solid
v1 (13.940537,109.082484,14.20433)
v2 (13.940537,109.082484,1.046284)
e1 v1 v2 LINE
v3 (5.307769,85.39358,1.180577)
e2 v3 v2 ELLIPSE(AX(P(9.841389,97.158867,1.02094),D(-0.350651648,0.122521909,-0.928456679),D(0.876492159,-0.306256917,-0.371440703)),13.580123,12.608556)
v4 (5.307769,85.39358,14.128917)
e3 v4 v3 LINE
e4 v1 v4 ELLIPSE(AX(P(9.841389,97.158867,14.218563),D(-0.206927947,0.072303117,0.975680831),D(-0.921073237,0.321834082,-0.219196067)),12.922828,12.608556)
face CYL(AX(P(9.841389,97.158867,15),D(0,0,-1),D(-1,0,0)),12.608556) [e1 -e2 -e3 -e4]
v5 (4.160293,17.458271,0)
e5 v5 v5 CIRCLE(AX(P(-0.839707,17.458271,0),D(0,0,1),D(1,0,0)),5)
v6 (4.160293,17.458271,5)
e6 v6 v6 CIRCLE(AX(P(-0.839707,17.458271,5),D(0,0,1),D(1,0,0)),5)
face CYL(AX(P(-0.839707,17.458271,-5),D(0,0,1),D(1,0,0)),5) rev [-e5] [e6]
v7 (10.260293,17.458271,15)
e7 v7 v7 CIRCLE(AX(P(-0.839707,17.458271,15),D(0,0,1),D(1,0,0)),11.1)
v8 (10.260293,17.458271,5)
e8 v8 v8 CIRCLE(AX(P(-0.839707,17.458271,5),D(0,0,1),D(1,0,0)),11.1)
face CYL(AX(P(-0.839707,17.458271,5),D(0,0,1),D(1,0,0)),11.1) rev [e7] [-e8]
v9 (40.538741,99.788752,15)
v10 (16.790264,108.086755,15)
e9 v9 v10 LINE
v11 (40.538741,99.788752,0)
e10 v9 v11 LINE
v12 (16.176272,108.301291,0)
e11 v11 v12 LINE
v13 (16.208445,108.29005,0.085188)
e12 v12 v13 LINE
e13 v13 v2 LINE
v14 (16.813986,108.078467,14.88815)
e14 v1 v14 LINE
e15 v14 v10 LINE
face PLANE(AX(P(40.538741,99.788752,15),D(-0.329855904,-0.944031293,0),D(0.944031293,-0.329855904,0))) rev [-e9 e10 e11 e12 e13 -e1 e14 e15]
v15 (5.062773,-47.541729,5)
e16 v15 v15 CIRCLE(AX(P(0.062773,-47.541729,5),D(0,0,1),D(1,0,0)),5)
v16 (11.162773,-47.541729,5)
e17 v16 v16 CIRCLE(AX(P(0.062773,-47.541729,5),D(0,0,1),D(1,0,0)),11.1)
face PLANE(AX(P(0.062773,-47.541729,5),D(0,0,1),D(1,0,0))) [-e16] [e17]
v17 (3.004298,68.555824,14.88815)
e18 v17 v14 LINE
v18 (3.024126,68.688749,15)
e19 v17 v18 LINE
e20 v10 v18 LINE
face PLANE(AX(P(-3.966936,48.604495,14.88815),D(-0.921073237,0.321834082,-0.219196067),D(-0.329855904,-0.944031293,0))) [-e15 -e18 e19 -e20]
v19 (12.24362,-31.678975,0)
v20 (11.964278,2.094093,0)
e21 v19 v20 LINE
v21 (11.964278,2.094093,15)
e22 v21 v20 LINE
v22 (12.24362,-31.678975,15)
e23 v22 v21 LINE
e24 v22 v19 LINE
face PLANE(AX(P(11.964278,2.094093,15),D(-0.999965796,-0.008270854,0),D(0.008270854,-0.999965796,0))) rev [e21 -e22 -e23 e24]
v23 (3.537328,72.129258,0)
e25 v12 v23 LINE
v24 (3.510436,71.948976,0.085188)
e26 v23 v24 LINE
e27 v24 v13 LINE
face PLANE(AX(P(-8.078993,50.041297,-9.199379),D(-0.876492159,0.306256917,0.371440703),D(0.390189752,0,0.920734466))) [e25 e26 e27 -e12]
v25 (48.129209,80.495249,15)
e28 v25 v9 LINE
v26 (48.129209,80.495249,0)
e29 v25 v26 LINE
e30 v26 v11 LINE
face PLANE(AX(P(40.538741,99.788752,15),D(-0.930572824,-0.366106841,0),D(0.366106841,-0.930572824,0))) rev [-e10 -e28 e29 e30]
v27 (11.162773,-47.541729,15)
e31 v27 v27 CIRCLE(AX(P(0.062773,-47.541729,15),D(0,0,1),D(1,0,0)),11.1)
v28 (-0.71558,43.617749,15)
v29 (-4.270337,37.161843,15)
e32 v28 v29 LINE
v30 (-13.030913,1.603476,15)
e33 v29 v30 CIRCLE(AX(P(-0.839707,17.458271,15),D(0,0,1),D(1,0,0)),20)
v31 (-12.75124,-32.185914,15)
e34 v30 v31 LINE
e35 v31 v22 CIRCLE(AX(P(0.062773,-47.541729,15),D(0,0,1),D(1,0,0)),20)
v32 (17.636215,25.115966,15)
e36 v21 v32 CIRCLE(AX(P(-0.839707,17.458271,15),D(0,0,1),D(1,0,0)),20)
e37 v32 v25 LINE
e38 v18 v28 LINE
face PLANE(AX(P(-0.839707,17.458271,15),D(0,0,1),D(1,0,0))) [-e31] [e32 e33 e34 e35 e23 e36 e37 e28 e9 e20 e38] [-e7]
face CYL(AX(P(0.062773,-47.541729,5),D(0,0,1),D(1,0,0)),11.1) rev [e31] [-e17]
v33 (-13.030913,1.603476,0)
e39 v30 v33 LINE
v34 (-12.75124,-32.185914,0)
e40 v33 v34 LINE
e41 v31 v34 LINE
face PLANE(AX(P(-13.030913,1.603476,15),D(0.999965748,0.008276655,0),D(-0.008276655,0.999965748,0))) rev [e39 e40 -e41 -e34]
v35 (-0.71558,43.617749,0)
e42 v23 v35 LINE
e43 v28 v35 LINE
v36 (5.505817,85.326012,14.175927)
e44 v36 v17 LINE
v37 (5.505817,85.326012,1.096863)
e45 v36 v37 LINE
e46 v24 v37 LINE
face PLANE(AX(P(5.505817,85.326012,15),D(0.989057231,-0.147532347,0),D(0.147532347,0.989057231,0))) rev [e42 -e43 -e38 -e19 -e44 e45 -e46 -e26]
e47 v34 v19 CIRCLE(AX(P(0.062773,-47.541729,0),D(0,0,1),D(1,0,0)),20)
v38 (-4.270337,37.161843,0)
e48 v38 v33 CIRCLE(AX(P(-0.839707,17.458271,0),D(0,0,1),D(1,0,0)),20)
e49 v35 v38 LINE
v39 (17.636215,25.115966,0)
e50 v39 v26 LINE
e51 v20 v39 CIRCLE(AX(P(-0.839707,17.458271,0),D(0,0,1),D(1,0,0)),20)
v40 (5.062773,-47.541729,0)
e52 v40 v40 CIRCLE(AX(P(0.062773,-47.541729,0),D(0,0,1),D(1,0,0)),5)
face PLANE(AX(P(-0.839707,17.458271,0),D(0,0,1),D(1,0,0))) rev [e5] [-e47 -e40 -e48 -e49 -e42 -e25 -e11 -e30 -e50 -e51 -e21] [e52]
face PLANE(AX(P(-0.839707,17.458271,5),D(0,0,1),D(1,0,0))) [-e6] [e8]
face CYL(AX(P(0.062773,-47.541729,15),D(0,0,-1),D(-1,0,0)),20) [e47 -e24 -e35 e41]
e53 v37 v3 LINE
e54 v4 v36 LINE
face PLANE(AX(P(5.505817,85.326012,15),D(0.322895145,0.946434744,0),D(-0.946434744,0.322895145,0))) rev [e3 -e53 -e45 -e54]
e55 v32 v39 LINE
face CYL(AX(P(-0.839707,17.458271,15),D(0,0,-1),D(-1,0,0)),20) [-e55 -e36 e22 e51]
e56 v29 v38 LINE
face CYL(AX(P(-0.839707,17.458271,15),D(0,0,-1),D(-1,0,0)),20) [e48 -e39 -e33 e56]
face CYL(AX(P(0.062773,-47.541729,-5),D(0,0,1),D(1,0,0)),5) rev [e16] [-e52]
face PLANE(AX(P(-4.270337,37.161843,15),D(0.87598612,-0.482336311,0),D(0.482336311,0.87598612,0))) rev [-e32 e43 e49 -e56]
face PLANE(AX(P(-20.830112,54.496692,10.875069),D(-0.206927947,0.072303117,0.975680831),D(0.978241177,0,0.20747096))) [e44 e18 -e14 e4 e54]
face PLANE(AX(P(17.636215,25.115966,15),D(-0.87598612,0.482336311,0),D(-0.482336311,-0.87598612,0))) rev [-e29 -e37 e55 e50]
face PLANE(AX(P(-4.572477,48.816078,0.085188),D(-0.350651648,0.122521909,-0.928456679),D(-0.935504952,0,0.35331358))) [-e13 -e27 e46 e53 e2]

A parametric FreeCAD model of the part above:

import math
import FreeCAD as App
import Part
import Sketcher
from FreeCAD import Vector

doc = App.newDocument("Part")
body = doc.addObject("PartDesign::Body", "Body")

sketch1 = body.newObject("Sketcher::SketchObject", "Sketch")
sketch1.AttachmentSupport = (doc.getObject("XY_Plane"), [""])
sketch1.MapMode = "FlatFace"
sketch1.addGeometry(Part.LineSegment(Vector(5.307769, 85.39358, 0), Vector(5.505817, 85.326012, 0)), False)
sketch1.addGeometry(Part.LineSegment(Vector(5.505817, 85.326012, 0), Vector(-0.71558, 43.617749, 0)), False)
sketch1.addGeometry(Part.LineSegment(Vector(-0.71558, 43.617749, 0), Vector(-4.270337, 37.161843, 0)), False)
sketch1.addGeometry(Part.ArcOfCircle(Part.Circle(Vector(-0.839707, 17.458271, 0), Vector(0, 0, 1), 20), math.radians(99.876875), math.radians(232.442286)), False)
sketch1.addGeometry(Part.LineSegment(Vector(-13.030913, 1.603476, 0), Vector(-12.75124, -32.185914, 0)), False)
sketch1.addGeometry(Part.ArcOfCircle(Part.Circle(Vector(0.062773, -47.541729, 0), Vector(0, 0, 1), 20), math.radians(129.844086), math.radians(412.479711)), False)
sketch1.addGeometry(Part.LineSegment(Vector(12.24362, -31.678975, 0), Vector(11.964278, 2.094093, 0)), False)
sketch1.addGeometry(Part.ArcOfCircle(Part.Circle(Vector(-0.839707, 17.458271, 0), Vector(0, 0, 1), 20), math.radians(-50.19332), math.radians(22.512485)), False)
sketch1.addGeometry(Part.LineSegment(Vector(17.636215, 25.115966, 0), Vector(48.129209, 80.495249, 0)), False)
sketch1.addGeometry(Part.LineSegment(Vector(48.129209, 80.495249, 0), Vector(40.538741, 99.788752, 0)), False)
sketch1.addGeometry(Part.LineSegment(Vector(40.538741, 99.788752, 0), Vector(13.940537, 109.082484, 0)), False)
sketch1.addGeometry(Part.ArcOfCircle(Part.Circle(Vector(9.841389, 97.158867, 0), Vector(0, 0, 1), 12.608556), math.radians(71.027855), math.radians(248.926395)), False)
sketch1.addConstraint(Sketcher.Constraint("Coincident", 0, 2, 1, 1))
sketch1.addConstraint(Sketcher.Constraint("Coincident", 1, 2, 2, 1))
sketch1.addConstraint(Sketcher.Constraint("Coincident", 2, 2, 3, 1))
sketch1.addConstraint(Sketcher.Constraint("Coincident", 3, 2, 4, 1))
sketch1.addConstraint(Sketcher.Constraint("Coincident", 4, 2, 5, 1))
sketch1.addConstraint(Sketcher.Constraint("Coincident", 5, 2, 6, 1))
sketch1.addConstraint(Sketcher.Constraint("Coincident", 6, 2, 7, 1))
sketch1.addConstraint(Sketcher.Constraint("Coincident", 7, 2, 8, 1))
sketch1.addConstraint(Sketcher.Constraint("Coincident", 8, 2, 9, 1))
sketch1.addConstraint(Sketcher.Constraint("Coincident", 9, 2, 10, 1))
sketch1.addConstraint(Sketcher.Constraint("Coincident", 10, 2, 11, 1))
sketch1.addConstraint(Sketcher.Constraint("Coincident", 11, 2, 0, 1))
sketch1.addConstraint(Sketcher.Constraint("Coincident", 7, 3, 3, 3))
sketch1.addConstraint(Sketcher.Constraint("Equal", 3, 5))
sketch1.addConstraint(Sketcher.Constraint("Equal", 5, 7))
sketch1.addConstraint(Sketcher.Constraint("Parallel", 2, 8))
sketch1.addConstraint(Sketcher.Constraint("Radius", 3, 20.0))
sketch1.addConstraint(Sketcher.Constraint("DistanceY", 5, 3, 3, 3, 65.0))
sketch1.addConstraint(Sketcher.Constraint("Radius", 11, 12.608556))
sketch1.addConstraint(Sketcher.Constraint("DistanceY", 1, 2, 8, 2, 36.8775))
sketch1.addConstraint(Sketcher.Constraint("Distance", 2, 7.369872))
sketch1.addConstraint(Sketcher.Constraint("Distance", 8, 63.219361))
sketch1.addConstraint(Sketcher.Constraint("Distance", 9, 20.732932))
sketch1.addConstraint(Sketcher.Constraint("Distance", 10, 28.175129))
sketch1.addConstraint(Sketcher.Constraint("DistanceY", -1, 1, 3, 3, 17.458271))
sketch1.addConstraint(Sketcher.Constraint("DistanceX", -1, 1, 11, 3, 9.841389))
sketch1.addConstraint(Sketcher.Constraint("DistanceX", 1, 2, -1, 1, 0.71558))
sketch1.addConstraint(Sketcher.Constraint("DistanceY", -1, 1, 1, 2, 43.617749))
sketch1.addConstraint(Sketcher.Constraint("DistanceX", 4, 2, -1, 1, 12.75124))
sketch1.addConstraint(Sketcher.Constraint("DistanceX", -1, 1, 5, 2, 12.24362))
sketch1.addConstraint(Sketcher.Constraint("DistanceX", -1, 1, 6, 2, 11.964278))
sketch1.addConstraint(Sketcher.Constraint("DistanceX", -1, 1, 8, 2, 48.129209))
sketch1.addConstraint(Sketcher.Constraint("DistanceX", -1, 1, 9, 2, 40.538741))
sketch1.addConstraint(Sketcher.Constraint("DistanceX", -1, 1, 11, 2, 5.307769))
sketch1.addConstraint(Sketcher.Constraint("DistanceY", -1, 1, 11, 2, 85.39358))
sketch1.addConstraint(Sketcher.Constraint("DistanceX", 3, 3, 5, 3, 0.902481))
sketch1.addConstraint(Sketcher.Constraint("DistanceX", 0, 2, 11, 3, 4.335572))
sketch1.addConstraint(Sketcher.Constraint("DistanceY", 3, 3, 0, 2, 67.867742))
sketch1.addConstraint(Sketcher.Constraint("DistanceY", 4, 2, 3, 2, 33.78939))
pad1 = body.newObject("PartDesign::Pad", "Pad")
pad1.Profile = sketch1
pad1.Length = 15

sketch2 = body.newObject("Sketcher::SketchObject", "Sketch001")
sketch2.AttachmentSupport = (doc.getObject("XY_Plane"), [""])
sketch2.MapMode = "FlatFace"
sketch2.AttachmentOffset = App.Placement(Vector(0, 0, 15), App.Rotation())
sketch2.addGeometry(Part.Circle(Vector(-0.839707, 17.458271, 0), Vector(0, 0, 1), 11.1), False)
sketch2.addGeometry(Part.Circle(Vector(0.062773, -47.541729, 0), Vector(0, 0, 1), 11.1), False)
sketch2.addConstraint(Sketcher.Constraint("Equal", 0, 1))
sketch2.addConstraint(Sketcher.Constraint("Diameter", 0, 22.2))
sketch2.addConstraint(Sketcher.Constraint("DistanceY", 1, 3, 0, 3, 65.0))
sketch2.addConstraint(Sketcher.Constraint("DistanceY", -1, 1, 0, 3, 17.458271))
sketch2.addConstraint(Sketcher.Constraint("DistanceX", 0, 3, 1, 3, 0.902481))
sketch2.addConstraint(Sketcher.Constraint("DistanceX", 0, 3, -1, 1, 0.839707))
pocket1 = body.newObject("PartDesign::Pocket", "Pocket")
pocket1.Profile = sketch2
pocket1.Length = 10

sketch3 = body.newObject("Sketcher::SketchObject", "Sketch002")
sketch3.AttachmentSupport = (doc.getObject("XY_Plane"), [""])
sketch3.MapMode = "FlatFace"
sketch3.AttachmentOffset = App.Placement(Vector(0, 0, 5), App.Rotation())
sketch3.addGeometry(Part.Circle(Vector(-0.839707, 17.458271, 0), Vector(0, 0, 1), 5), False)
sketch3.addGeometry(Part.Circle(Vector(0.062773, -47.541729, 0), Vector(0, 0, 1), 5), False)
sketch3.addConstraint(Sketcher.Constraint("Equal", 0, 1))
sketch3.addConstraint(Sketcher.Constraint("Diameter", 0, 10.0))
sketch3.addConstraint(Sketcher.Constraint("DistanceY", 1, 3, 0, 3, 65.0))
sketch3.addConstraint(Sketcher.Constraint("DistanceY", -1, 1, 0, 3, 17.458271))
sketch3.addConstraint(Sketcher.Constraint("DistanceX", 0, 3, 1, 3, 0.902481))
sketch3.addConstraint(Sketcher.Constraint("DistanceX", 0, 3, -1, 1, 0.839707))
pocket2 = body.newObject("PartDesign::Pocket", "Pocket001")
pocket2.Profile = sketch3
pocket2.Length = 10

sketch4 = body.newObject("Sketcher::SketchObject", "Sketch003")
sketch4.Placement = App.Placement(Vector(35.484462, 101.554777, 0), App.Rotation(Vector(0.944031293, -0.329855904, 0), Vector(0, 0, -1), Vector(0.329855904, 0.944031293, 0), "ZXY"))
sketch4.addGeometry(Part.LineSegment(Vector(-37.645575, -6.976962, 0), Vector(-20.418833, -0.085188, 0)), False)
sketch4.addGeometry(Part.LineSegment(Vector(-20.418833, -0.085188, 0), Vector(-24.13324, 9.199379, 0)), False)
sketch4.addGeometry(Part.LineSegment(Vector(-24.13324, 9.199379, 0), Vector(-41.359982, 2.307605, 0)), False)
sketch4.addGeometry(Part.LineSegment(Vector(-41.359982, 2.307605, 0), Vector(-37.645575, -6.976962, 0)), False)
sketch4.addGeometry(Part.LineSegment(Vector(-19.777392, -14.88815, 0), Vector(-37.640333, -10.875069, 0)), False)
sketch4.addGeometry(Part.LineSegment(Vector(-37.640333, -10.875069, 0), Vector(-39.832294, -20.631877, 0)), False)
sketch4.addGeometry(Part.LineSegment(Vector(-39.832294, -20.631877, 0), Vector(-21.969352, -24.644959, 0)), False)
sketch4.addGeometry(Part.LineSegment(Vector(-21.969352, -24.644959, 0), Vector(-19.777392, -14.88815, 0)), False)
sketch4.addConstraint(Sketcher.Constraint("Coincident", 0, 2, 1, 1))
sketch4.addConstraint(Sketcher.Constraint("Coincident", 1, 2, 2, 1))
sketch4.addConstraint(Sketcher.Constraint("Coincident", 2, 2, 3, 1))
sketch4.addConstraint(Sketcher.Constraint("Coincident", 3, 2, 0, 1))
sketch4.addConstraint(Sketcher.Constraint("Coincident", 4, 2, 5, 1))
sketch4.addConstraint(Sketcher.Constraint("Coincident", 5, 2, 6, 1))
sketch4.addConstraint(Sketcher.Constraint("Coincident", 6, 2, 7, 1))
sketch4.addConstraint(Sketcher.Constraint("Coincident", 7, 2, 4, 1))
sketch4.addConstraint(Sketcher.Constraint("Perpendicular", 0, 1))
sketch4.addConstraint(Sketcher.Constraint("Perpendicular", 1, 2))
sketch4.addConstraint(Sketcher.Constraint("Perpendicular", 2, 3))
sketch4.addConstraint(Sketcher.Constraint("Perpendicular", 4, 5))
sketch4.addConstraint(Sketcher.Constraint("Perpendicular", 5, 6))
sketch4.addConstraint(Sketcher.Constraint("Perpendicular", 6, 7))
sketch4.addConstraint(Sketcher.Constraint("Equal", 3, 5))
sketch4.addConstraint(Sketcher.Constraint("Distance", 1, 10.0))
sketch4.addConstraint(Sketcher.Constraint("DistanceX", 4, 2, 0, 2, 17.2215))
sketch4.addConstraint(Sketcher.Constraint("Distance", 0, 18.554169))
sketch4.addConstraint(Sketcher.Constraint("Distance", 4, 18.308181))
sketch4.addConstraint(Sketcher.Constraint("DistanceX", 1, 2, -1, 1, 24.13324))
sketch4.addConstraint(Sketcher.Constraint("DistanceY", -1, 1, 1, 2, 9.199379))
sketch4.addConstraint(Sketcher.Constraint("DistanceX", 2, 2, -1, 1, 41.359982))
sketch4.addConstraint(Sketcher.Constraint("DistanceY", 4, 2, -1, 1, 10.875069))
sketch4.addConstraint(Sketcher.Constraint("DistanceY", 6, 2, -1, 1, 24.644959))
pocket3 = body.newObject("PartDesign::Pocket", "Pocket002")
pocket3.Profile = sketch4
pocket3.Length = 63

doc.recompute()
